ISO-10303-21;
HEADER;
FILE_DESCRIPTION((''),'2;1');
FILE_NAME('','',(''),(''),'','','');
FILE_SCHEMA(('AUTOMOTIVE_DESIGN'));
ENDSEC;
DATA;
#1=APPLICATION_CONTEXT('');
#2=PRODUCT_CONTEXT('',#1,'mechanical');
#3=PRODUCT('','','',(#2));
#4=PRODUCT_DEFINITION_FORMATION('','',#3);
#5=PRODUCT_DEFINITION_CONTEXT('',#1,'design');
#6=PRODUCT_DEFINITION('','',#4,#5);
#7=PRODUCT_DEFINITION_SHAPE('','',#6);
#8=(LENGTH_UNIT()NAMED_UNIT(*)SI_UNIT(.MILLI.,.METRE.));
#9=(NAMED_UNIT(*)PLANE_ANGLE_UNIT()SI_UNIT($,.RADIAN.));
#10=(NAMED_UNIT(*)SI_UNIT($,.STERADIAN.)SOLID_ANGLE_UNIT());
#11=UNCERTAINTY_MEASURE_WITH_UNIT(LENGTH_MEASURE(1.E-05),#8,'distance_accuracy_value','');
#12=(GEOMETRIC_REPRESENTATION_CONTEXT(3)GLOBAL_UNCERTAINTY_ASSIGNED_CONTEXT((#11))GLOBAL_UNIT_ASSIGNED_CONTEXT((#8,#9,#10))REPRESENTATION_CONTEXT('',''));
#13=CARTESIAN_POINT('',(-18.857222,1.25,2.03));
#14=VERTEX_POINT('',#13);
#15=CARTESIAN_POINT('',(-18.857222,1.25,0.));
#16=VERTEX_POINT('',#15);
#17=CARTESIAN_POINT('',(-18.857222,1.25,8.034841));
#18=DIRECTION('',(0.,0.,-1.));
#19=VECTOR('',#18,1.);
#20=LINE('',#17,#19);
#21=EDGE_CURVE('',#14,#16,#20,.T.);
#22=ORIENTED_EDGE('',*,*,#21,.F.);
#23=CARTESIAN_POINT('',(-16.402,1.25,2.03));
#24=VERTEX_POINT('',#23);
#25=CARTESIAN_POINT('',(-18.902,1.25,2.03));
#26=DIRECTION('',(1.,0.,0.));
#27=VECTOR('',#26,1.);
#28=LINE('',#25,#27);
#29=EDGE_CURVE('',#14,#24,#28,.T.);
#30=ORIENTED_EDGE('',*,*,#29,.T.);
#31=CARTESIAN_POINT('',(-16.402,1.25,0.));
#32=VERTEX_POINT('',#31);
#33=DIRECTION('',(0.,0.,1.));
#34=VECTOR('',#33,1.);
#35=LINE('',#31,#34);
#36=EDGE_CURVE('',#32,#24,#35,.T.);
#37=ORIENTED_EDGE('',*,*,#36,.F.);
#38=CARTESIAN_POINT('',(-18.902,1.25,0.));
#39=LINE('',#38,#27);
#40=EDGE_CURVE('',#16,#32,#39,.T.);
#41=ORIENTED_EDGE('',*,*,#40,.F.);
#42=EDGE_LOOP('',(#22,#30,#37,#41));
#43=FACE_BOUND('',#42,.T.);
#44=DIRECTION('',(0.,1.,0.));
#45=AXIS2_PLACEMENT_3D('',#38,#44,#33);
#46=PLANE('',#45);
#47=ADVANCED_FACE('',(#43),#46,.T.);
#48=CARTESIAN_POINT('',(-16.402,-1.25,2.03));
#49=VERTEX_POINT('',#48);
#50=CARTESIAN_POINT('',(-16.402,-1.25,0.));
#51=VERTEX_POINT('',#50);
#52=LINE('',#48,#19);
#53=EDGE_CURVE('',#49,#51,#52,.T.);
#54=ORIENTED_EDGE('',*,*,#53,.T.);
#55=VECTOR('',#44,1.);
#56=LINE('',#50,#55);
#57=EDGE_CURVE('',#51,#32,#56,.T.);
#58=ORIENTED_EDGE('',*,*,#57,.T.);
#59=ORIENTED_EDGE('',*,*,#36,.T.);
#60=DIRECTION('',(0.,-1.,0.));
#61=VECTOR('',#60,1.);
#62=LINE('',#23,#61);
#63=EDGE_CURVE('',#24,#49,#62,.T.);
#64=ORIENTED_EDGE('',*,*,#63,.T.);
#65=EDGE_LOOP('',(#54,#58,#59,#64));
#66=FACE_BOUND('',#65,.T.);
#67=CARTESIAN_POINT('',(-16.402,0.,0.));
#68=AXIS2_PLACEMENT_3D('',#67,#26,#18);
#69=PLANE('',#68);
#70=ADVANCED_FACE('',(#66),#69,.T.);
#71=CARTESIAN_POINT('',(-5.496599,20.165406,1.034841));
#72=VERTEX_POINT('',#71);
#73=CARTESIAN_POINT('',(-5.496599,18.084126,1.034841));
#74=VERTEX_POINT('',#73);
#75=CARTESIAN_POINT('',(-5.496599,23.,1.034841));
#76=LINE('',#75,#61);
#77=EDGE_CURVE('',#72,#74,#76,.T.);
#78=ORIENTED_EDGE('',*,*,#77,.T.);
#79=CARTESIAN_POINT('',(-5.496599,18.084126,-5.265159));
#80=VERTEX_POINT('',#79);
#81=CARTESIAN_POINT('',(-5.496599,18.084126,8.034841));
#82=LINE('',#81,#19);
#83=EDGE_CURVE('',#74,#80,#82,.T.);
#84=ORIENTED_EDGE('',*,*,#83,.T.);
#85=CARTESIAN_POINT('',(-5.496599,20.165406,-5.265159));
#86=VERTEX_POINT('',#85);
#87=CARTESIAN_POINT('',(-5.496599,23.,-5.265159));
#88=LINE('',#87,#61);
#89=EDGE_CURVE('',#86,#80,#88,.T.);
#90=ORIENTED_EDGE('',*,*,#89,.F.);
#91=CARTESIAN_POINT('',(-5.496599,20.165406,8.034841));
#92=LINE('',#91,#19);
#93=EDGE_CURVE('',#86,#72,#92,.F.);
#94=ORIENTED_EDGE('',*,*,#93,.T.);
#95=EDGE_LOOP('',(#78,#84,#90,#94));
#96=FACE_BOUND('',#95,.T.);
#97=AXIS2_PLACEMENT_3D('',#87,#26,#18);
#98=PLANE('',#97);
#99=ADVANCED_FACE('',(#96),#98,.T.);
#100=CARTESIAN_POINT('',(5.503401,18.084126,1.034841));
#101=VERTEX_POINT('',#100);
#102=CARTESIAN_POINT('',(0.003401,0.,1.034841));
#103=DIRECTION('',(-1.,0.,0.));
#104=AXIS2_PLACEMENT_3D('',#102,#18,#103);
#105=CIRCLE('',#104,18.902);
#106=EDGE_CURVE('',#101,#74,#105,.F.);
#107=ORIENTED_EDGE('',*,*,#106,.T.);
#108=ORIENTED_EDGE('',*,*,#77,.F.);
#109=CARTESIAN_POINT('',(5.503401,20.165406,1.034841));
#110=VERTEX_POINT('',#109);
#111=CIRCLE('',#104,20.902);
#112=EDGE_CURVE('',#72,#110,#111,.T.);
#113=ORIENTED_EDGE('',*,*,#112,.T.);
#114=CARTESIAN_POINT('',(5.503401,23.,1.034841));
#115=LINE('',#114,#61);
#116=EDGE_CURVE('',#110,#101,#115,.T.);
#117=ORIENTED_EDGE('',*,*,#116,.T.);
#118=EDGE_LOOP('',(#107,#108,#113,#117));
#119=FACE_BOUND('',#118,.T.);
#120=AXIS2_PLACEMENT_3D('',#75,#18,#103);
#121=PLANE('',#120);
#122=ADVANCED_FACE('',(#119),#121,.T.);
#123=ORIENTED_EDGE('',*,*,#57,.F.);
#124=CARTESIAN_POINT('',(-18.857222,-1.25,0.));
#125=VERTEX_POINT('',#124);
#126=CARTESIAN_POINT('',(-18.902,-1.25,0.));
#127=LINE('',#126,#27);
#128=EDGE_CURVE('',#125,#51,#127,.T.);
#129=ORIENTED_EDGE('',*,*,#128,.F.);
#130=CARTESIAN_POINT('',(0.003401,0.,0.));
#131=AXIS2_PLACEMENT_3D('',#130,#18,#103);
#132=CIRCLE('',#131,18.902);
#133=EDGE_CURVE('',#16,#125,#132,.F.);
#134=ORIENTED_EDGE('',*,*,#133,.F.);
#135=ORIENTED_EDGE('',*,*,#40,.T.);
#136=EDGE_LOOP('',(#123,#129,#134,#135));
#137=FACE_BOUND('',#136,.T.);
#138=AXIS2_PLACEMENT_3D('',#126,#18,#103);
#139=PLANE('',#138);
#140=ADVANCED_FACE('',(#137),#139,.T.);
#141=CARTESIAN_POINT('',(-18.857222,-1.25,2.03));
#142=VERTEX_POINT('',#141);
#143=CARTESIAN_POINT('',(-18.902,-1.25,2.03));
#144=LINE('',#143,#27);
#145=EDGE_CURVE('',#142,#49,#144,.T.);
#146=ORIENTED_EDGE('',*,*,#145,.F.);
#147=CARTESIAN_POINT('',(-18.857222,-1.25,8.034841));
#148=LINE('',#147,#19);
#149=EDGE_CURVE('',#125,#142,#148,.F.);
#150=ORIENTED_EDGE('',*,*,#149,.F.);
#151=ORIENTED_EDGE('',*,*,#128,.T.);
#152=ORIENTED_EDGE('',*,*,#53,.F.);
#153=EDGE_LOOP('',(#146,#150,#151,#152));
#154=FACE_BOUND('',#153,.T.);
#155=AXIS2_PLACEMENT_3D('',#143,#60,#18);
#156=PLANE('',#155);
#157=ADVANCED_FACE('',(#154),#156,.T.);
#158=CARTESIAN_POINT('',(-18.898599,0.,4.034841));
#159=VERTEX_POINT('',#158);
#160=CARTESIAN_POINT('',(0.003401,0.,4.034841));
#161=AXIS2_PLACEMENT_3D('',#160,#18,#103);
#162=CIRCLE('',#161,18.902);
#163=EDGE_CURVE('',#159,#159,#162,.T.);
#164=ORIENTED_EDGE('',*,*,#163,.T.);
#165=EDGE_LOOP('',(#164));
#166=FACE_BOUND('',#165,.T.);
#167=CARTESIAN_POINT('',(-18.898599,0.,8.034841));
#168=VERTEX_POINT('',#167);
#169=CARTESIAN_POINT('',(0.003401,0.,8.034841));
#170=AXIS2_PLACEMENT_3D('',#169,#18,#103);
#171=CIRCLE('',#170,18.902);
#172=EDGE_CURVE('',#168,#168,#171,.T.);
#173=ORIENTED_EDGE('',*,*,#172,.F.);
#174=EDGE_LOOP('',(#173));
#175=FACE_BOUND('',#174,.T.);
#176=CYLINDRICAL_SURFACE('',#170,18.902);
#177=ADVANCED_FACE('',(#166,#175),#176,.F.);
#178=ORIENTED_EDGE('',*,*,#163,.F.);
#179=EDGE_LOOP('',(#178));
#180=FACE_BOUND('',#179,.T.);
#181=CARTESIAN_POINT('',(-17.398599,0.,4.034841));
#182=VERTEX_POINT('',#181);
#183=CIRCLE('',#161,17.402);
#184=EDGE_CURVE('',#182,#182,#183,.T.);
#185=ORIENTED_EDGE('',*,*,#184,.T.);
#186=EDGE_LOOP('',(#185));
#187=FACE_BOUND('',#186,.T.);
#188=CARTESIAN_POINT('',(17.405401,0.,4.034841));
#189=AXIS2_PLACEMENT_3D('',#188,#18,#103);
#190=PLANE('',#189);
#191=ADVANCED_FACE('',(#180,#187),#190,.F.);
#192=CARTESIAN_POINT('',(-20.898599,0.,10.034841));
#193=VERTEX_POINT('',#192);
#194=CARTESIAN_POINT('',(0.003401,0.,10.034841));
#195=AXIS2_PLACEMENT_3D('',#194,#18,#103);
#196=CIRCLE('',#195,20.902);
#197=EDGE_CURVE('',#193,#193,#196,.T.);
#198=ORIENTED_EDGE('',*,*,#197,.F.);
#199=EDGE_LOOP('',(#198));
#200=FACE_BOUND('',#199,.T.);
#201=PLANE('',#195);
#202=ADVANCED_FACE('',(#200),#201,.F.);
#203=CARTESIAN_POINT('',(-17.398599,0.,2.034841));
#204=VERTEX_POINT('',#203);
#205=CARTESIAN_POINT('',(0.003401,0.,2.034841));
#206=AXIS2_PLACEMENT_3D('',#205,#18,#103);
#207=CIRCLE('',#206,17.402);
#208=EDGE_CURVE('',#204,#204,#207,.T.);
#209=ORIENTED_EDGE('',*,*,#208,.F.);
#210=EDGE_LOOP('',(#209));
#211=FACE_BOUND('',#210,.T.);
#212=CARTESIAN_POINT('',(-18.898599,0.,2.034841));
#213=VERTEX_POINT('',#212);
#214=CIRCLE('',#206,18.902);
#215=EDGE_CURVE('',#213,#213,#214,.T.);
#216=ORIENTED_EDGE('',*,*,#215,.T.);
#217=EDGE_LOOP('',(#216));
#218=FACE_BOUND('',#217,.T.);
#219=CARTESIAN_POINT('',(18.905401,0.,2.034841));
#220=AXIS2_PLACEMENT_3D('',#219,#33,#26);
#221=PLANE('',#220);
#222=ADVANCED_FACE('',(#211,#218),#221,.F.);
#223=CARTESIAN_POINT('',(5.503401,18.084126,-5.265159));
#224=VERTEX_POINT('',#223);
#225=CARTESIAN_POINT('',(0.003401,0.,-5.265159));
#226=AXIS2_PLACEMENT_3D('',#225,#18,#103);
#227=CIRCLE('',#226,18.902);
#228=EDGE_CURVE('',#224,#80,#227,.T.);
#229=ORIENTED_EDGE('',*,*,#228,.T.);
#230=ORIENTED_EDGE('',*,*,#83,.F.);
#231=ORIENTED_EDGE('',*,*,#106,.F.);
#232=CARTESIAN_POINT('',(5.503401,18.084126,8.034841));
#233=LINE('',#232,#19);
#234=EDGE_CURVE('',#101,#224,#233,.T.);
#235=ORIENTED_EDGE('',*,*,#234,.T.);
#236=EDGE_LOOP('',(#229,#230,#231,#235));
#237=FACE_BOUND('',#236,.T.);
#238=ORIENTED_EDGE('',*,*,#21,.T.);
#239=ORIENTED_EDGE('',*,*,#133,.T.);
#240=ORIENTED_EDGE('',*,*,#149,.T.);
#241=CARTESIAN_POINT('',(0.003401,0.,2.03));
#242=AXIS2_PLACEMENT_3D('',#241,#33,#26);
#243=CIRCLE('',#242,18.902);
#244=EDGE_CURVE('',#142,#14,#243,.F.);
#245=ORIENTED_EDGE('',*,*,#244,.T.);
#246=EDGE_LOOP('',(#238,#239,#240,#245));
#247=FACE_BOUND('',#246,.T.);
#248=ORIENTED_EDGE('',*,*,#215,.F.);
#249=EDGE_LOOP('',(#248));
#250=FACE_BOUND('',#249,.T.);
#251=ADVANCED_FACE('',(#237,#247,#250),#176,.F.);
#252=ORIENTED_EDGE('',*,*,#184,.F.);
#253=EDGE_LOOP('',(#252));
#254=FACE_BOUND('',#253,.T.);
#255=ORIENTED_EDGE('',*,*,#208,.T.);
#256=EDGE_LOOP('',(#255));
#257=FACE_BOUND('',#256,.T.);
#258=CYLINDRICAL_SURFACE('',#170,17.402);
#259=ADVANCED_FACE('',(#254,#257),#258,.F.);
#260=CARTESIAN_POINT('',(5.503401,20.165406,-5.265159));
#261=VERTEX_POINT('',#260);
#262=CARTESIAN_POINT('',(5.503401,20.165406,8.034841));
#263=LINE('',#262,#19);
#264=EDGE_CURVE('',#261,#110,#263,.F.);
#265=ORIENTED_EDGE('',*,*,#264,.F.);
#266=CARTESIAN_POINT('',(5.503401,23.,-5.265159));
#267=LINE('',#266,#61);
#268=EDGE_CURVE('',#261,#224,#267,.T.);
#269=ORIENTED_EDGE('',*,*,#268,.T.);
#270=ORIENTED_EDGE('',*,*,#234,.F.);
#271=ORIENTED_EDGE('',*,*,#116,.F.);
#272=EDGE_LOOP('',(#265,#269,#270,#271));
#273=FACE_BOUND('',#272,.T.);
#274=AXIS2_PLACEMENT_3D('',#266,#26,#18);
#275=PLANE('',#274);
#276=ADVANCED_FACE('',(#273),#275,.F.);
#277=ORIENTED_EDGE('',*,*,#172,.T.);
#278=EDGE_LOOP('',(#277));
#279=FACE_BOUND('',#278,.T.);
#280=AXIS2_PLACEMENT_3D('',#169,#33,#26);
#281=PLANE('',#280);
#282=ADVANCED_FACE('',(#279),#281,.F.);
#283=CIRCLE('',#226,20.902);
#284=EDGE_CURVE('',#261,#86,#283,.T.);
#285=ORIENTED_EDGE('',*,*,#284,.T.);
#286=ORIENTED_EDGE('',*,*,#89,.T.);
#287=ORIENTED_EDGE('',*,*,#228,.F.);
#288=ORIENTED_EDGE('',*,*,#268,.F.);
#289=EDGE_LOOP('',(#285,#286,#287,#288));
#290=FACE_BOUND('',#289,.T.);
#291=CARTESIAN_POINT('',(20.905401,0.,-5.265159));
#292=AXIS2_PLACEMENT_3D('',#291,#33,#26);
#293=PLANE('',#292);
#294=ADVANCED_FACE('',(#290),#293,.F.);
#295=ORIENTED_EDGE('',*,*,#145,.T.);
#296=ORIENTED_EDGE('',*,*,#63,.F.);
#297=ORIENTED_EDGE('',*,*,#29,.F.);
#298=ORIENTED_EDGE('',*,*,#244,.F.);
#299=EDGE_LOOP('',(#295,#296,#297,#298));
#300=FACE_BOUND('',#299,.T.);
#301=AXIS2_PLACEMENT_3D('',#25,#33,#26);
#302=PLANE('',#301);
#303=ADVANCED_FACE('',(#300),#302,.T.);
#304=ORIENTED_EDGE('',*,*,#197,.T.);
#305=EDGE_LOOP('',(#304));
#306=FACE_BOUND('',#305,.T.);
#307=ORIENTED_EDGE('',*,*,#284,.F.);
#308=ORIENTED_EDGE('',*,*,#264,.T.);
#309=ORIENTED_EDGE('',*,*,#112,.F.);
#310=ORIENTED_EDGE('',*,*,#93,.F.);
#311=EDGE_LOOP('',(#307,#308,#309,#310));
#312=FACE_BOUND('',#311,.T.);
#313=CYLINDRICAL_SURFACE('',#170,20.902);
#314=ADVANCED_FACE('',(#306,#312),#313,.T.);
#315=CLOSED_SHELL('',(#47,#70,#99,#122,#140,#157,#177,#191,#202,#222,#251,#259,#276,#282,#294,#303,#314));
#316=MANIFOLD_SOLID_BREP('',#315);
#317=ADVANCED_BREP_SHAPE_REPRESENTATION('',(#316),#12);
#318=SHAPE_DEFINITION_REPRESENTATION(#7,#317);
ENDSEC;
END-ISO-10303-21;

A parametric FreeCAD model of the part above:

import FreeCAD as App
import Part
import Sketcher

V = App.Vector
Q = App.Units.Quantity


def add_polygon(sketch, points):
    """Adds a closed chain of lines whose ends are joined by coincident constraints."""
    first, n = sketch.GeometryCount, len(points)
    for a, b in zip(points, points[1:] + points[:1]):
        sketch.addGeometry(Part.LineSegment(App.Vector(*a, 0), App.Vector(*b, 0)), False)
    for i in range(n):
        sketch.addConstraint(Sketcher.Constraint("Coincident", first + i, 2, first + (i + 1) % n, 1))

doc = App.newDocument("Part")
body = doc.addObject("PartDesign::Body", "Body")

# Sketch on XZ plane
sketch1 = body.newObject("Sketcher::SketchObject", "Sketch")
sketch1.AttachmentSupport = (doc.getObject("XZ_Plane"), [""])
sketch1.MapMode = "FlatFace"
add_polygon(sketch1, [(0, 8), (0, 10), (20.9, 10), (20.9, -5.3), (18.9, -5.3), (18.9, 2), (17.4, 2), (17.4, 4), (18.9, 4), (18.9, 8)])  # lines 0-9
sketch1.addGeometry(Part.LineSegment(V(0, -5.3, 0), V(0, 10, 0)), True)  # axis
sketch1.addConstraint([
    Sketcher.Constraint("Vertical", 0),
    Sketcher.Constraint("Horizontal", 1),
    Sketcher.Constraint("Vertical", 2),
    Sketcher.Constraint("Horizontal", 3),
    Sketcher.Constraint("Vertical", 4),
    Sketcher.Constraint("Horizontal", 5),
    Sketcher.Constraint("Vertical", 6),
    Sketcher.Constraint("Horizontal", 7),
    Sketcher.Constraint("Vertical", 8),
    Sketcher.Constraint("Horizontal", 9),
    Sketcher.Constraint("Vertical", 10),
    Sketcher.Constraint("Coincident", 10, 2, 0, 2),
    Sketcher.Constraint("Horizontal", 3, 2, 10, 1),
    Sketcher.Constraint("Vertical", 4, 2, 7, 2),
    Sketcher.Constraint("Equal", 3, 0),
    Sketcher.Constraint("Equal", 0, 6),
    Sketcher.Constraint("DistanceX", 3, 2, 3, 1, Q("2 mm")),
    Sketcher.Constraint("DistanceY", 8, 1, 8, 2, Q("4 mm")),
    Sketcher.Constraint("DistanceX", 5, 2, 5, 1, Q("1.5 mm")),
    Sketcher.Constraint("DistanceY", 2, 2, 2, 1, Q("15.3 mm")),
    Sketcher.Constraint("DistanceX", 1, 1, 1, 2, Q("20.902 mm")),
    Sketcher.Constraint("DistanceX", -1, 1, 0, 2, Q("0.003401 mm")),
    Sketcher.Constraint("DistanceY", -1, 1, 0, 2, Q("10.034841 mm")),
])
revolution = body.newObject("PartDesign::Revolution", "Revolution")
revolution.Profile = sketch1
revolution.ReferenceAxis = (sketch1, ["Axis0"])
revolution.Angle = 360

# Sketch on YZ plane
sketch2 = body.newObject("Sketcher::SketchObject", "Sketch001")
sketch2.AttachmentSupport = (doc.getObject("YZ_Plane"), [""])
sketch2.MapMode = "FlatFace"
add_polygon(sketch2, [(1.2, 2), (-1.2, 2), (-1.2, 0), (1.2, 0)])  # lines 0-3
sketch2.addConstraint([
    Sketcher.Constraint("Horizontal", 0),
    Sketcher.Constraint("Vertical", 1),
    Sketcher.Constraint("Horizontal", 2),
    Sketcher.Constraint("Vertical", 3),
    Sketcher.Constraint("Symmetric", 1, 2, 2, 2, -1, 1),
    Sketcher.Constraint("DistanceX", 0, 2, 0, 1, Q("2.5 mm")),
    Sketcher.Constraint("DistanceY", 1, 2, 1, 1, Q("2.03 mm")),
])
pad1 = body.newObject("PartDesign::Pad", "Pad")
pad1.Profile = sketch2
pad1.Length = 18.902
pad1.Reversed = True

# Sketch on YZ plane
sketch3 = body.newObject("Sketcher::SketchObject", "Sketch002")
sketch3.AttachmentSupport = (doc.getObject("YZ_Plane"), [""])
sketch3.MapMode = "FlatFace"
add_polygon(sketch3, [(1.2, 2), (-1.2, 2), (-1.2, 0), (1.2, 0)])  # lines 0-3
sketch3.addConstraint([
    Sketcher.Constraint("Horizontal", 0),
    Sketcher.Constraint("Vertical", 1),
    Sketcher.Constraint("Horizontal", 2),
    Sketcher.Constraint("Vertical", 3),
    Sketcher.Constraint("Symmetric", 1, 2, 2, 2, -1, 1),
    Sketcher.Constraint("DistanceX", 0, 2, 0, 1, Q("2.5 mm")),
    Sketcher.Constraint("DistanceY", 1, 2, 1, 1, Q("2.03 mm")),
])
pocket1 = body.newObject("PartDesign::Pocket", "Pocket")
pocket1.Profile = sketch3
pocket1.Length = 16.402

# Sketch on XZ plane
sketch4 = body.newObject("Sketcher::SketchObject", "Sketch003")
sketch4.AttachmentSupport = (doc.getObject("XZ_Plane"), [""])
sketch4.MapMode = "FlatFace"
add_polygon(sketch4, [(-5, -5), (-5, 1), (6, 1), (6, -5)])  # lines 0-3
sketch4.addConstraint([
    Sketcher.Constraint("Vertical", 0),
    Sketcher.Constraint("Horizontal", 1),
    Sketcher.Constraint("Vertical", 2),
    Sketcher.Constraint("Horizontal", 3),
    Sketcher.Constraint("DistanceX", 1, 1, 1, 2, Q("11 mm")),
    Sketcher.Constraint("DistanceY", 0, 1, 0, 2, Q("6.3 mm")),
    Sketcher.Constraint("DistanceX", 0, 2, -1, 1, Q("5.496599 mm")),
    Sketcher.Constraint("DistanceY", -1, 1, 0, 2, Q("1.034841 mm")),
])
pocket2 = body.newObject("PartDesign::Pocket", "Pocket001")
pocket2.Profile = sketch4
pocket2.Length = 23

doc.recompute()
